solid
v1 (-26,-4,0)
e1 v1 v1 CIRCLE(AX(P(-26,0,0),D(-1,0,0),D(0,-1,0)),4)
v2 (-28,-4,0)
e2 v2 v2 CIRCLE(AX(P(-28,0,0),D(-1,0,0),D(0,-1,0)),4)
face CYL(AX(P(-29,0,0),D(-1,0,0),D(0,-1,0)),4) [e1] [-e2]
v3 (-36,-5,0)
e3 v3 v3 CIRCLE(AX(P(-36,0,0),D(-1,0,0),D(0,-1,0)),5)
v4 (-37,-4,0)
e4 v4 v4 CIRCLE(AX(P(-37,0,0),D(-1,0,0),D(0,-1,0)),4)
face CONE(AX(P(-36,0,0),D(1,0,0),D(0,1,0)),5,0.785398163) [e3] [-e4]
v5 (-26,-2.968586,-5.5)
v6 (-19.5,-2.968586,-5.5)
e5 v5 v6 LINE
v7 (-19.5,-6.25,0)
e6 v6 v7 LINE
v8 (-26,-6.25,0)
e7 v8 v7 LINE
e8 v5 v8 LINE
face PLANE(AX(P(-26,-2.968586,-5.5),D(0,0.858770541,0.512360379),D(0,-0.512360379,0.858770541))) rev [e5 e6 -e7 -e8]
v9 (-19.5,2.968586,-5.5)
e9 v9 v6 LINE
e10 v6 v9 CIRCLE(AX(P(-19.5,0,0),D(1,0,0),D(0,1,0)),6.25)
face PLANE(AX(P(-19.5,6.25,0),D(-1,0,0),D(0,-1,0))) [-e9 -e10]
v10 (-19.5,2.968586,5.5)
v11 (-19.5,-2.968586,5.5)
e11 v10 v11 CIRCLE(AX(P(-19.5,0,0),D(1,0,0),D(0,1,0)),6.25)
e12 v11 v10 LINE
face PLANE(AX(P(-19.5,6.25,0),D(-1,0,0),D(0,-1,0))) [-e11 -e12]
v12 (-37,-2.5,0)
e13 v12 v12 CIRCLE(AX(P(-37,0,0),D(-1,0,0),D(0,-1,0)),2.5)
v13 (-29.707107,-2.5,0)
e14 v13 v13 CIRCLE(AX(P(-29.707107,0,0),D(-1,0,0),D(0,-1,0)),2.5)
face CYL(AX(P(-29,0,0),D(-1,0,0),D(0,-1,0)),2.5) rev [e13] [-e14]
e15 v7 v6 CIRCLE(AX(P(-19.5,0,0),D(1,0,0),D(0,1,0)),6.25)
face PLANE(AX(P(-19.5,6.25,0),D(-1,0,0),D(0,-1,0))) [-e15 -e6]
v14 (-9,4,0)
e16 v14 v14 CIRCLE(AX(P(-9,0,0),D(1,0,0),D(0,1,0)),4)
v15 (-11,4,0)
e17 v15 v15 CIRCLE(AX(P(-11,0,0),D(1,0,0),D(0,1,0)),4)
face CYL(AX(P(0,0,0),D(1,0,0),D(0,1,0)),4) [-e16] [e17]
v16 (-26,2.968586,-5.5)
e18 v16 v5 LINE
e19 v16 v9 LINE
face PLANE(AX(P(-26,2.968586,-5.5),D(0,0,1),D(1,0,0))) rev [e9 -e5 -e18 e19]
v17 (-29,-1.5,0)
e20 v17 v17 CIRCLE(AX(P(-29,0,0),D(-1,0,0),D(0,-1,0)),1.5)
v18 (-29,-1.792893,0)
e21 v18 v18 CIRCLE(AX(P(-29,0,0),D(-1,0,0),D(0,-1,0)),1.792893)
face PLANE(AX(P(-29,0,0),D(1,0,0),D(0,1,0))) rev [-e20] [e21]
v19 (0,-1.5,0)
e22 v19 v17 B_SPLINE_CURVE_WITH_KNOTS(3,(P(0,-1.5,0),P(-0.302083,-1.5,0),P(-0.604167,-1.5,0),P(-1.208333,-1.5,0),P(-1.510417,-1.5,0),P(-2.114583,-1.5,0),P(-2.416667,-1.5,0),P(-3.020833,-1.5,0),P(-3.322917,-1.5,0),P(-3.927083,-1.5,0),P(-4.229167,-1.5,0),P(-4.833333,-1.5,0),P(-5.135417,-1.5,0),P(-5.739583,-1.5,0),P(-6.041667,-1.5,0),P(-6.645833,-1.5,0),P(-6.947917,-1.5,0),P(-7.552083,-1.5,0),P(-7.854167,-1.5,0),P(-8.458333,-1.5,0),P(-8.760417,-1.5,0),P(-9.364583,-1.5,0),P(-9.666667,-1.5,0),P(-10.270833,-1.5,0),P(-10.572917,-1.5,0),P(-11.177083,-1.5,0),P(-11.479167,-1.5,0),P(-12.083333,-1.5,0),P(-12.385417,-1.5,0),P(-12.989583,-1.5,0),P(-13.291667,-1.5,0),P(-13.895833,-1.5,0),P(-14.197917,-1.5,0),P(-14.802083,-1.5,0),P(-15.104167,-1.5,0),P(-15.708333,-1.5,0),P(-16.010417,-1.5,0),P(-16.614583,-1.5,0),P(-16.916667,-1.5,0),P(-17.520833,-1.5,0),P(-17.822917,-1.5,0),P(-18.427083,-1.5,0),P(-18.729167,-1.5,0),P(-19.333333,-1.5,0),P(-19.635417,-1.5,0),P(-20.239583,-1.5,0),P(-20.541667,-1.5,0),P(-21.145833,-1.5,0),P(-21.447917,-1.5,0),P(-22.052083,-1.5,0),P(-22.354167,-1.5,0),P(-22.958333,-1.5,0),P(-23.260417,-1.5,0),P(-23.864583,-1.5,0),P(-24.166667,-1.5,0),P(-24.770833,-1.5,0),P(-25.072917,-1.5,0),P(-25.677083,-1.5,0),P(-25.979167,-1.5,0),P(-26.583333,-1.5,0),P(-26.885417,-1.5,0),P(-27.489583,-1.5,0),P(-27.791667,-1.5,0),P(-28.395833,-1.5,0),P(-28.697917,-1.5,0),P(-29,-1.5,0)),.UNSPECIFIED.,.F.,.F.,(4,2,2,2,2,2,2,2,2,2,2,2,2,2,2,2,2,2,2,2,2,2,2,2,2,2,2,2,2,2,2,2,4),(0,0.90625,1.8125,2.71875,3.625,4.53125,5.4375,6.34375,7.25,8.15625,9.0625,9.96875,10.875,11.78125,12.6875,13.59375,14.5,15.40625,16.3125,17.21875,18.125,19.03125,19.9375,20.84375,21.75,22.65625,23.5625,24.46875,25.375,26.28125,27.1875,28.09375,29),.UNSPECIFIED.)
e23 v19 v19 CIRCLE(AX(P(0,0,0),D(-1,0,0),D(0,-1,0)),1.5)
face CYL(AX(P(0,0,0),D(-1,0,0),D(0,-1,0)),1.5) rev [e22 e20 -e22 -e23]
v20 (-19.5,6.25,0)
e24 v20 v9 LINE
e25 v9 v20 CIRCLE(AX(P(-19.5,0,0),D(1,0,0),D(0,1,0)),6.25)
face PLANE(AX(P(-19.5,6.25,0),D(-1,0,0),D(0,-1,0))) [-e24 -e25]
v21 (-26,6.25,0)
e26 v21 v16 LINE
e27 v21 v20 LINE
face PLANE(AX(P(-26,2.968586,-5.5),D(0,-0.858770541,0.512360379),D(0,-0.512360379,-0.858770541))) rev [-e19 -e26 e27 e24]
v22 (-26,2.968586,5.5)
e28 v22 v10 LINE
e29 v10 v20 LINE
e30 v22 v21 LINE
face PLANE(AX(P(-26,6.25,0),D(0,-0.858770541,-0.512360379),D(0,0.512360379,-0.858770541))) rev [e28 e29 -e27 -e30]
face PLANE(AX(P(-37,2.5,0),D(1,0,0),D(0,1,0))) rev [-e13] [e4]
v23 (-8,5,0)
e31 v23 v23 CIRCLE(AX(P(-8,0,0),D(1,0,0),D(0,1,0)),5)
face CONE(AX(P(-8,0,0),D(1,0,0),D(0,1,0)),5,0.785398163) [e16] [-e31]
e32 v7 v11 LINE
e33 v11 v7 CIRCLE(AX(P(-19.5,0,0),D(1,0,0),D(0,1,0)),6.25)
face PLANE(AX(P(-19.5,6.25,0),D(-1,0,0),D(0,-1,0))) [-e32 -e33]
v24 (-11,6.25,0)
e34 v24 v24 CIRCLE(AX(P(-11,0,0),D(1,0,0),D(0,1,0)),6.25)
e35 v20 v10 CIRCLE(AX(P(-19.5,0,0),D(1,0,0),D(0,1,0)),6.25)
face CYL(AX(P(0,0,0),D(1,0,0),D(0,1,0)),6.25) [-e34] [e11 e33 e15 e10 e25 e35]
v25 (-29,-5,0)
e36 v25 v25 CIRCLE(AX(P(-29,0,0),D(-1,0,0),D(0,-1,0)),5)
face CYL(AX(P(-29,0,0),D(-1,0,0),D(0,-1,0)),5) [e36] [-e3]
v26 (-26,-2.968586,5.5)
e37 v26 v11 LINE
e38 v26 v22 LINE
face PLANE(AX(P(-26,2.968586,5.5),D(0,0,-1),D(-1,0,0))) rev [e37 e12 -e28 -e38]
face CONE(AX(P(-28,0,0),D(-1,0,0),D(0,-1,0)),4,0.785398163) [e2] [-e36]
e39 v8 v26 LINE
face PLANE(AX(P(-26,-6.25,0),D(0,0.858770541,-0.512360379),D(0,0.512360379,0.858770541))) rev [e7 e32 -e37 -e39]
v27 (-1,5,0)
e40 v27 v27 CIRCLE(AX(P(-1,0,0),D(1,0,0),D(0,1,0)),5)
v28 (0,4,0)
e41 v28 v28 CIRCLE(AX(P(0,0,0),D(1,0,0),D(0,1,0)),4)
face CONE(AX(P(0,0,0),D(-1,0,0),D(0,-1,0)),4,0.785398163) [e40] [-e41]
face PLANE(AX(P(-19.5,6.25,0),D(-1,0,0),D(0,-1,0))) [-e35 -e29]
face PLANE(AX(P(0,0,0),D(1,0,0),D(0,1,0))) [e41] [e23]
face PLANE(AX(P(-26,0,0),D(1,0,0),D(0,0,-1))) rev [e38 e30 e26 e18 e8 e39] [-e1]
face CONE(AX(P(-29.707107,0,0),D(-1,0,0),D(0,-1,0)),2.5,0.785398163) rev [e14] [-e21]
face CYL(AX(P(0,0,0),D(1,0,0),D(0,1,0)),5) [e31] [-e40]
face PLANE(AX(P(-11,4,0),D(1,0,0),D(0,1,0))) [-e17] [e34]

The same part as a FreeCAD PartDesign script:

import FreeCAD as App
import Part
import Sketcher
from FreeCAD import Vector

doc = App.newDocument("Part")
params = doc.addObject("Spreadsheet::Sheet", "Params")
for row, (alias, value) in enumerate([
    ("sketch1_width", "7 mm"),
    ("sketch1_width2", "2 mm"),
    ("sketch1_height", "4 mm"),
    ("sketch1_width3", "19.5 mm"),
    ("sketch1_width4", "8.5 mm"),
    ("revolution_angle", "360 deg"),
    ("pad1_length", "6.5 mm"),
    ("sketch3_width", "3 mm"),
    ("sketch3_width2", "2 mm"),
    ("sketch3_width3", "7 mm"),
    ("sketch3_height", "4 mm"),
    ("sketch3_length", "1 mm"),
    ("revolution2_angle", "360 deg"),
    ("sketch4_diameter", "3 mm"),
], start=1):
    params.set(f"A{row}", alias)
    params.set(f"B{row}", "=" + value)
    params.setAlias(f"B{row}", alias)

body = doc.addObject("PartDesign::Body", "Body")

# Sketch on XY plane
sketch1 = doc.addObject("Sketcher::SketchObject", "Sketch")
body.addObject(sketch1)
sketch1.AttachmentSupport = (doc.XY_Plane, [""])
sketch1.MapMode = "FlatFace"
sketch1.addGeometry(Part.LineSegment(Vector(-19.5, 0, 0), Vector(0, 0, 0)), False)
sketch1.addGeometry(Part.LineSegment(Vector(0, 0, 0), Vector(0, 4, 0)), False)
sketch1.addGeometry(Part.LineSegment(Vector(0, 4, 0), Vector(-1, 5, 0)), False)
sketch1.addGeometry(Part.LineSegment(Vector(-1, 5, 0), Vector(-8, 5, 0)), False)
sketch1.addGeometry(Part.LineSegment(Vector(-8, 5, 0), Vector(-9, 4, 0)), False)
sketch1.addGeometry(Part.LineSegment(Vector(-9, 4, 0), Vector(-11, 4, 0)), False)
sketch1.addGeometry(Part.LineSegment(Vector(-11, 4, 0), Vector(-11, 6.2, 0)), False)
sketch1.addGeometry(Part.LineSegment(Vector(-11, 6.2, 0), Vector(-19.5, 6.2, 0)), False)
sketch1.addGeometry(Part.LineSegment(Vector(-19.5, 6.2, 0), Vector(-19.5, 0, 0)), False)
sketch1.addConstraint(Sketcher.Constraint("Coincident", 0, 2, 1, 1))
sketch1.addConstraint(Sketcher.Constraint("Coincident", 1, 2, 2, 1))
sketch1.addConstraint(Sketcher.Constraint("Coincident", 2, 2, 3, 1))
sketch1.addConstraint(Sketcher.Constraint("Coincident", 3, 2, 4, 1))
sketch1.addConstraint(Sketcher.Constraint("Coincident", 4, 2, 5, 1))
sketch1.addConstraint(Sketcher.Constraint("Coincident", 5, 2, 6, 1))
sketch1.addConstraint(Sketcher.Constraint("Coincident", 6, 2, 7, 1))
sketch1.addConstraint(Sketcher.Constraint("Coincident", 7, 2, 8, 1))
sketch1.addConstraint(Sketcher.Constraint("Coincident", 8, 2, 0, 1))
sketch1.addConstraint(Sketcher.Constraint("Horizontal", 0))
sketch1.addConstraint(Sketcher.Constraint("Vertical", 1))
sketch1.addConstraint(Sketcher.Constraint("Horizontal", 3))
sketch1.addConstraint(Sketcher.Constraint("Horizontal", 5))
sketch1.addConstraint(Sketcher.Constraint("Vertical", 6))
sketch1.addConstraint(Sketcher.Constraint("Horizontal", 7))
sketch1.addConstraint(Sketcher.Constraint("Vertical", 8))
sketch1.addConstraint(Sketcher.Constraint("Coincident", 0, 2, -1, 1))
sketch1.addConstraint(Sketcher.Constraint("Perpendicular", 2, 4))
sketch1.addConstraint(Sketcher.Constraint("Horizontal", 1, 2, 4, 2))
sketch1.addConstraint(Sketcher.Constraint("Equal", 2, 4))
sketch1.addConstraint(Sketcher.Constraint("DistanceX", 3, 2, 3, 1, 7.0))
sketch1.addConstraint(Sketcher.Constraint("DistanceX", 5, 2, 5, 1, 2.0))
sketch1.addConstraint(Sketcher.Constraint("DistanceY", 1, 1, 1, 2, 4.0))
sketch1.addConstraint(Sketcher.Constraint("DistanceX", 0, 1, 0, 2, 19.5))
sketch1.addConstraint(Sketcher.Constraint("DistanceX", 7, 2, 7, 1, 8.5))
sketch1.addConstraint(Sketcher.Constraint("DistanceY", 6, 1, 6, 2, 2.25))
sketch1.setExpression("Constraints[20]", "Params.sketch1_width")
sketch1.setExpression("Constraints[21]", "Params.sketch1_width2")
sketch1.setExpression("Constraints[22]", "Params.sketch1_height")
sketch1.setExpression("Constraints[23]", "Params.sketch1_width3")
sketch1.setExpression("Constraints[24]", "Params.sketch1_width4")
revolution = doc.addObject("PartDesign::Revolution", "Revolution")
body.addObject(revolution)
revolution.Profile = sketch1
revolution.ReferenceAxis = (sketch1, ["H_Axis"])
revolution.setExpression("Angle", "Params.revolution_angle")

# Sketch on YZ plane
sketch2 = doc.addObject("Sketcher::SketchObject", "Sketch001")
body.addObject(sketch2)
sketch2.AttachmentSupport = (doc.YZ_Plane, [""])
sketch2.MapMode = "FlatFace"
sketch2.AttachmentOffset = App.Placement(Vector(0, 0, -19.5), App.Rotation())
sketch2.addGeometry(Part.LineSegment(Vector(3, -6, 0), Vector(-3, -6, 0)), False)
sketch2.addGeometry(Part.LineSegment(Vector(-3, -6, 0), Vector(-6, 0, 0)), False)
sketch2.addGeometry(Part.LineSegment(Vector(-6, 0, 0), Vector(-3, 6, 0)), False)
sketch2.addGeometry(Part.LineSegment(Vector(-3, 6, 0), Vector(3, 6, 0)), False)
sketch2.addGeometry(Part.LineSegment(Vector(3, 6, 0), Vector(6, 0, 0)), False)
sketch2.addGeometry(Part.LineSegment(Vector(6, 0, 0), Vector(3, -6, 0)), False)
sketch2.addConstraint(Sketcher.Constraint("Coincident", 0, 2, 1, 1))
sketch2.addConstraint(Sketcher.Constraint("Coincident", 1, 2, 2, 1))
sketch2.addConstraint(Sketcher.Constraint("Coincident", 2, 2, 3, 1))
sketch2.addConstraint(Sketcher.Constraint("Coincident", 3, 2, 4, 1))
sketch2.addConstraint(Sketcher.Constraint("Coincident", 4, 2, 5, 1))
sketch2.addConstraint(Sketcher.Constraint("Coincident", 5, 2, 0, 1))
sketch2.addConstraint(Sketcher.Constraint("Horizontal", 0))
sketch2.addConstraint(Sketcher.Constraint("Horizontal", 3))
sketch2.addConstraint(Sketcher.Constraint("Symmetric", 0, 2, 3, 2, -1, 1))
sketch2.addConstraint(Sketcher.Constraint("Symmetric", 1, 2, 4, 2, -1, 1))
sketch2.addConstraint(Sketcher.Constraint("PointOnObject", 1, 2, -1))
sketch2.addConstraint(Sketcher.Constraint("Parallel", 2, 5))
sketch2.addConstraint(Sketcher.Constraint("Vertical", 0, 2, 2, 2))
sketch2.addConstraint(Sketcher.Constraint("DistanceY", 0, 2, 2, 2, 11.0))
sketch2.addConstraint(Sketcher.Constraint("DistanceX", 1, 2, 4, 2, 12.5))
sketch2.addConstraint(Sketcher.Constraint("DistanceX", 0, 2, 0, 1, 5.937171))
pad1 = doc.addObject("PartDesign::Pad", "Pad")
body.addObject(pad1)
pad1.Profile = sketch2
pad1.setExpression("Length", "Params.pad1_length")
pad1.Reversed = True

# Sketch on XY plane
sketch3 = doc.addObject("Sketcher::SketchObject", "Sketch002")
body.addObject(sketch3)
sketch3.AttachmentSupport = (doc.XY_Plane, [""])
sketch3.MapMode = "FlatFace"
sketch3.addGeometry(Part.LineSegment(Vector(-29, 0, 0), Vector(-26, 0, 0)), False)
sketch3.addGeometry(Part.LineSegment(Vector(-26, 0, 0), Vector(-26, 4, 0)), False)
sketch3.addGeometry(Part.LineSegment(Vector(-26, 4, 0), Vector(-28, 4, 0)), False)
sketch3.addGeometry(Part.LineSegment(Vector(-28, 4, 0), Vector(-29, 5, 0)), False)
sketch3.addGeometry(Part.LineSegment(Vector(-29, 5, 0), Vector(-36, 5, 0)), False)
sketch3.addGeometry(Part.LineSegment(Vector(-36, 5, 0), Vector(-37, 4, 0)), False)
sketch3.addGeometry(Part.LineSegment(Vector(-37, 4, 0), Vector(-37, 2.5, 0)), False)
sketch3.addGeometry(Part.LineSegment(Vector(-37, 2.5, 0), Vector(-29.7, 2.5, 0)), False)
sketch3.addGeometry(Part.LineSegment(Vector(-29.7, 2.5, 0), Vector(-29, 1.8, 0)), False)
sketch3.addGeometry(Part.LineSegment(Vector(-29, 1.8, 0), Vector(-29, 0, 0)), False)
sketch3.addConstraint(Sketcher.Constraint("Coincident", 0, 2, 1, 1))
sketch3.addConstraint(Sketcher.Constraint("Coincident", 1, 2, 2, 1))
sketch3.addConstraint(Sketcher.Constraint("Coincident", 2, 2, 3, 1))
sketch3.addConstraint(Sketcher.Constraint("Coincident", 3, 2, 4, 1))
sketch3.addConstraint(Sketcher.Constraint("Coincident", 4, 2, 5, 1))
sketch3.addConstraint(Sketcher.Constraint("Coincident", 5, 2, 6, 1))
sketch3.addConstraint(Sketcher.Constraint("Coincident", 6, 2, 7, 1))
sketch3.addConstraint(Sketcher.Constraint("Coincident", 7, 2, 8, 1))
sketch3.addConstraint(Sketcher.Constraint("Coincident", 8, 2, 9, 1))
sketch3.addConstraint(Sketcher.Constraint("Coincident", 9, 2, 0, 1))
sketch3.addConstraint(Sketcher.Constraint("Horizontal", 0))
sketch3.addConstraint(Sketcher.Constraint("Vertical", 1))
sketch3.addConstraint(Sketcher.Constraint("Horizontal", 2))
sketch3.addConstraint(Sketcher.Constraint("Horizontal", 4))
sketch3.addConstraint(Sketcher.Constraint("Vertical", 6))
sketch3.addConstraint(Sketcher.Constraint("Horizontal", 7))
sketch3.addConstraint(Sketcher.Constraint("Vertical", 9))
sketch3.addConstraint(Sketcher.Constraint("PointOnObject", 0, 2, -1))
sketch3.addConstraint(Sketcher.Constraint("Perpendicular", 3, 5))
sketch3.addConstraint(Sketcher.Constraint("Perpendicular", 5, 8))
sketch3.addConstraint(Sketcher.Constraint("Horizontal", 2, 2, 5, 2))
sketch3.addConstraint(Sketcher.Constraint("Vertical", 3, 2, 8, 2))
sketch3.addConstraint(Sketcher.Constraint("Equal", 3, 5))
sketch3.addConstraint(Sketcher.Constraint("DistanceX", 0, 1, 0, 2, 3.0))
sketch3.addConstraint(Sketcher.Constraint("DistanceX", 2, 2, 2, 1, 2.0))
sketch3.addConstraint(Sketcher.Constraint("DistanceX", 4, 2, 4, 1, 7.0))
sketch3.addConstraint(Sketcher.Constraint("DistanceY", 1, 1, 1, 2, 4.0))
sketch3.addConstraint(Sketcher.Constraint("Distance", 8, 1.0))
sketch3.addConstraint(Sketcher.Constraint("DistanceY", 6, 2, 6, 1, 1.5))
sketch3.addConstraint(Sketcher.Constraint("DistanceX", 0, 2, -1, 1, 26.0))
sketch3.setExpression("Constraints[23]", "Params.sketch3_width")
sketch3.setExpression("Constraints[24]", "Params.sketch3_width2")
sketch3.setExpression("Constraints[25]", "Params.sketch3_width3")
sketch3.setExpression("Constraints[26]", "Params.sketch3_height")
sketch3.setExpression("Constraints[27]", "Params.sketch3_length")
revolution2 = doc.addObject("PartDesign::Revolution", "Revolution001")
body.addObject(revolution2)
revolution2.Profile = sketch3
revolution2.ReferenceAxis = (sketch3, ["H_Axis"])
revolution2.setExpression("Angle", "Params.revolution2_angle")

# Sketch on YZ plane
sketch4 = doc.addObject("Sketcher::SketchObject", "Sketch003")
body.addObject(sketch4)
sketch4.AttachmentSupport = (doc.YZ_Plane, [""])
sketch4.MapMode = "FlatFace"
sketch4.AttachmentOffset = App.Placement(Vector(0, 0, -29), App.Rotation())
sketch4.addGeometry(Part.Circle(Vector(0, 0, 0), Vector(0, 0, 1), 1.5), False)
sketch4.addConstraint(Sketcher.Constraint("Coincident", 0, 3, -1, 1))
sketch4.addConstraint(Sketcher.Constraint("Diameter", 0, 3.0))
sketch4.setExpression("Constraints[1]", "Params.sketch4_diameter")
pocket1 = doc.addObject("PartDesign::Pocket", "Pocket")
body.addObject(pocket1)
pocket1.Profile = sketch4
pocket1.Type = "ThroughAll"
pocket1.Reversed = True

doc.recompute()
